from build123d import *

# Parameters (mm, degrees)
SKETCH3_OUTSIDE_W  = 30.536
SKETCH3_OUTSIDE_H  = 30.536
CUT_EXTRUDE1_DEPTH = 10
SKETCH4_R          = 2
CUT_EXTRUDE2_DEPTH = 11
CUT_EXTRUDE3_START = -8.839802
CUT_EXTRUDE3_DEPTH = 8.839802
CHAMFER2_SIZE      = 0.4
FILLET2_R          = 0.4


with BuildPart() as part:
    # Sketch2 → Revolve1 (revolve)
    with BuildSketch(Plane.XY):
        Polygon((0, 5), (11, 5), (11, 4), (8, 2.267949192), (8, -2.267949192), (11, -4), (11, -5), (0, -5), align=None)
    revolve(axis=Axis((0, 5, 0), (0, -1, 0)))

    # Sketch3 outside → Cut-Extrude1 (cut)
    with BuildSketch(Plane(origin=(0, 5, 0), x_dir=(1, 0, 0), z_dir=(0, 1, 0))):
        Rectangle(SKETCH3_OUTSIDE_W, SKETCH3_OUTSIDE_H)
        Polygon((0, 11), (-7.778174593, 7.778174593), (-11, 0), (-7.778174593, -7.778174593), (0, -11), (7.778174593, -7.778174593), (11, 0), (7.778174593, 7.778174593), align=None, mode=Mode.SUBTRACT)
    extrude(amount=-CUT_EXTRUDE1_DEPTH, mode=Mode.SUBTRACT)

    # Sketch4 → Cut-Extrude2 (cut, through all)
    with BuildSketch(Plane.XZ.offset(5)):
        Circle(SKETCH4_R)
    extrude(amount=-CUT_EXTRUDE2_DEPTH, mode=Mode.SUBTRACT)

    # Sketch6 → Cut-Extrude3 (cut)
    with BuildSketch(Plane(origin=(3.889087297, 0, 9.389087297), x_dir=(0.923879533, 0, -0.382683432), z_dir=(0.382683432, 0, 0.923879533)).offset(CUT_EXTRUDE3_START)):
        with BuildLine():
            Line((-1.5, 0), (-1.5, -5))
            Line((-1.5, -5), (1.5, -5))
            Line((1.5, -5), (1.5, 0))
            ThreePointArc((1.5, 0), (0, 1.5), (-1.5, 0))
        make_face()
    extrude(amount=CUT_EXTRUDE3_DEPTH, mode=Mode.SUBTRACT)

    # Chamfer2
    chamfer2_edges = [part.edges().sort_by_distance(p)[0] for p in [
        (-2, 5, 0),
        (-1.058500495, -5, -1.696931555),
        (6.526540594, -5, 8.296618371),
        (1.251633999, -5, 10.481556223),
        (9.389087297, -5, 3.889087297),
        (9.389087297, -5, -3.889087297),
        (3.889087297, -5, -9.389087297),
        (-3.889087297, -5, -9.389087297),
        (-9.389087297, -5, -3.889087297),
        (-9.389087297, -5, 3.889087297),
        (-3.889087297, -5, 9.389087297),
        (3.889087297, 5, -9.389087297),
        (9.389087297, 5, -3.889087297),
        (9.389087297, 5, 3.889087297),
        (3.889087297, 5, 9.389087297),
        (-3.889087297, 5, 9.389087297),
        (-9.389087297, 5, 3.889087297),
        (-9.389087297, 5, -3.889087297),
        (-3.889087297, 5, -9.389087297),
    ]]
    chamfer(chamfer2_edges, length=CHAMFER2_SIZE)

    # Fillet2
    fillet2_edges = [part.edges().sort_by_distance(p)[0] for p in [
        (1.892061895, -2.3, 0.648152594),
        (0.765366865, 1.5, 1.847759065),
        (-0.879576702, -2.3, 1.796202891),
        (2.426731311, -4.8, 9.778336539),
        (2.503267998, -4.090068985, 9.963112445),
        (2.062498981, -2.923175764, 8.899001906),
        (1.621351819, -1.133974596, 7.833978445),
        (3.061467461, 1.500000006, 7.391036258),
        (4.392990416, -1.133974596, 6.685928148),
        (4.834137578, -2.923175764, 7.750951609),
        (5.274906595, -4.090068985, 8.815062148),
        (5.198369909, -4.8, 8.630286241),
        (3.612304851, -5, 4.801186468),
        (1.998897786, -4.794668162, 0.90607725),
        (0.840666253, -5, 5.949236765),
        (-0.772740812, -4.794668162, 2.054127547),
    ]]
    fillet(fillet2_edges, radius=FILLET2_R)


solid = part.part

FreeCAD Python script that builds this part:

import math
import FreeCAD as App
import Part
import Sketcher
Q = App.Units.Quantity


def edges_at(feature, points):
    """Names of the edges that pass closest to the given points."""
    edges = feature.Shape.Edges
    near = lambda p: min(range(len(edges)), key=lambda i: edges[i].distToShape(Part.Vertex(*p))[0])
    return sorted({f"Edge{near(p) + 1}" for p in points})


def add_polygon(sketch, points):
    """Adds a closed chain of lines whose ends are joined by coincident constraints."""
    first, n = sketch.GeometryCount, len(points)
    for a, b in zip(points, points[1:] + points[:1]):
        sketch.addGeometry(Part.LineSegment(App.Vector(*a, 0), App.Vector(*b, 0)), False)
    for i in range(n):
        sketch.addConstraint(Sketcher.Constraint("Coincident", first + i, 2, first + (i + 1) % n, 1))

doc = App.newDocument("Part")
params = doc.addObject("Spreadsheet::Sheet", "Params")
for row, (alias, value) in enumerate([
    ("sketch1_width", "11 mm"),
    ("sketch1_height", "10 mm"),
    ("sketch1_height2", "1 mm"),
    ("revolution_angle", "360 deg"),
    ("pocket1_length", "10 mm"),
    ("sketch3_diameter", "4 mm"),
    ("sketch4_radius", "1.5 mm"),
    ("sketch4_height", "5 mm"),
    ("pocket3_length", "8.839802 mm"),
    ("chamfer_size", "0.4 mm"),
    ("fillet_radius", "0.4 mm"),
], start=1):
    params.set(f"A{row}", alias)
    params.set(f"B{row}", "=" + value)
    params.setAlias(f"B{row}", alias)

body = doc.addObject("PartDesign::Body", "Body")

sketch1 = doc.addObject("Sketcher::SketchObject", "Sketch")
body.addObject(sketch1)
sketch1.AttachmentSupport = (doc.XY_Plane, [""])
sketch1.MapMode = "FlatFace"
add_polygon(sketch1, [(11, 5), (0, 5), (0, -5), (11, -5), (11, -4), (8, -2.267949), (8, 2.267949), (11, 4)])
sketch1.addConstraint([
    Sketcher.Constraint("Horizontal", 0),
    Sketcher.Constraint("Vertical", 1),
    Sketcher.Constraint("Horizontal", 2),
    Sketcher.Constraint("Vertical", 3),
    Sketcher.Constraint("Vertical", 5),
    Sketcher.Constraint("Vertical", 7),
    Sketcher.Constraint("Symmetric", 0, 2, 1, 2, -1, 1),
    Sketcher.Constraint("Symmetric", 3, 2, 6, 2, -1),
    Sketcher.Constraint("Equal", 4, 6),
    Sketcher.Constraint("DistanceX", 0, 2, 0, 1, Q("11 mm")),
    Sketcher.Constraint("DistanceY", 1, 2, 1, 1, Q("10 mm")),
    Sketcher.Constraint("DistanceY", 3, 1, 3, 2, Q("1 mm")),
    Sketcher.Constraint("Angle", 4, Q("150 deg")),
    Sketcher.Constraint("DistanceX", -1, 1, 4, 2, Q("8 mm")),
])
sketch1.setExpression("Constraints[17]", "Params.sketch1_width")
sketch1.setExpression("Constraints[18]", "Params.sketch1_height")
sketch1.setExpression("Constraints[19]", "Params.sketch1_height2")
revolution = doc.addObject("PartDesign::Revolution", "Revolution")
body.addObject(revolution)
revolution.Profile = sketch1
revolution.ReferenceAxis = (sketch1, ["V_Axis"])
revolution.setExpression("Angle", "Params.revolution_angle")

sketch2 = doc.addObject("Sketcher::SketchObject", "Sketch001")
body.addObject(sketch2)
sketch2.AttachmentSupport = (doc.XZ_Plane, [""])
sketch2.MapMode = "FlatFace"
sketch2.AttachmentOffset = App.Placement(App.Vector(0, 0, -5), App.Rotation())
add_polygon(sketch2, [(-15.268, -15.268), (-15.268, 15.268), (15.268, 15.268), (15.268, -15.268)])
add_polygon(sketch2, [(-7.778175, -7.778175), (0, -11), (7.778175, -7.778175), (11, 0), (7.778175, 7.778175), (0, 11), (-7.778175, 7.778175), (-11, 0)])
sketch2.addConstraint([
    Sketcher.Constraint("Vertical", 0),
    Sketcher.Constraint("Horizontal", 1),
    Sketcher.Constraint("Vertical", 2),
    Sketcher.Constraint("Horizontal", 3),
    Sketcher.Constraint("Symmetric", 0, 2, 2, 2, -1, 1),
    Sketcher.Constraint("Symmetric", 4, 2, 8, 2, -1, 1),
    Sketcher.Constraint("Symmetric", 5, 2, 9, 2, -1, 1),
    Sketcher.Constraint("Symmetric", 6, 2, 10, 2, -1, 1),
    Sketcher.Constraint("Symmetric", 7, 2, 11, 2, -1, 1),
    Sketcher.Constraint("Symmetric", 7, 2, 9, 2, -2),
    Sketcher.Constraint("PointOnObject", 4, 2, -2),
    Sketcher.Constraint("PointOnObject", 6, 2, -1),
    Sketcher.Constraint("Perpendicular", 4, 6),
    Sketcher.Constraint("Equal", 3, 0),
    Sketcher.Constraint("Equal", 5, 6),
    Sketcher.Constraint("DistanceY", 4, 2, -1, 1, Q("11 mm")),
    Sketcher.Constraint("Angle", 4, Q("-22.5 deg")),
    Sketcher.Constraint("DistanceX", 1, 1, 1, 2, Q("30.536 mm")),
])
pocket1 = doc.addObject("PartDesign::Pocket", "Pocket")
body.addObject(pocket1)
pocket1.Profile = sketch2
pocket1.setExpression("Length", "Params.pocket1_length")
pocket1.Reversed = True

sketch3 = doc.addObject("Sketcher::SketchObject", "Sketch002")
body.addObject(sketch3)
sketch3.AttachmentSupport = (doc.XZ_Plane, [""])
sketch3.MapMode = "FlatFace"
sketch3.AttachmentOffset = App.Placement(App.Vector(0, 0, 5), App.Rotation())
sketch3.addGeometry(Part.Circle(App.Vector(0, 0, 0), App.Vector(0, 0, 1), 2), False)
sketch3.addConstraint([
    Sketcher.Constraint("Coincident", 0, 3, -1, 1),
    Sketcher.Constraint("Diameter", 0, Q("4 mm")),
])
sketch3.setExpression("Constraints[1]", "Params.sketch3_diameter")
pocket2 = doc.addObject("PartDesign::Pocket", "Pocket001")
body.addObject(pocket2)
pocket2.Profile = sketch3
pocket2.Type = "ThroughAll"

sketch4 = doc.addObject("Sketcher::SketchObject", "Sketch003")
body.addObject(sketch4)
sketch4.Placement = App.Placement(App.Vector(0.506242, 0, 1.222175), App.Rotation(App.Vector(0.923879533, 0, -0.382683432), App.Vector(0, 1.000000001, 0), App.Vector(0.382683432, 0, 0.923879533), "ZXY"))
sketch4.addGeometry([
    Part.LineSegment(App.Vector(-1.5, 0, 0), App.Vector(-1.5, -5, 0)),
    Part.LineSegment(App.Vector(-1.5, -5, 0), App.Vector(1.5, -5, 0)),
    Part.LineSegment(App.Vector(1.5, -5, 0), App.Vector(1.5, 0, 0)),
    Part.ArcOfCircle(Part.Circle(App.Vector(0, 0, 0), App.Vector(0, 0, 1), 1.5), math.radians(0), math.radians(180)),
], False)
sketch4.addConstraint([
    Sketcher.Constraint("Coincident", 0, 2, 1, 1),
    Sketcher.Constraint("Coincident", 1, 2, 2, 1),
    Sketcher.Constraint("Tangent", 2, 2, 3, 1),
    Sketcher.Constraint("Tangent", 3, 2, 0, 1),
    Sketcher.Constraint("Vertical", 0),
    Sketcher.Constraint("Horizontal", 1),
    Sketcher.Constraint("Vertical", 2),
    Sketcher.Constraint("Coincident", 3, 3, -1, 1),
    Sketcher.Constraint("Radius", 3, Q("1.5 mm")),
    Sketcher.Constraint("DistanceY", 0, 2, 0, 1, Q("5 mm")),
])
sketch4.setExpression("Constraints[8]", "Params.sketch4_radius")
sketch4.setExpression("Constraints[9]", "Params.sketch4_height")
pocket3 = doc.addObject("PartDesign::Pocket", "Pocket002")
body.addObject(pocket3)
pocket3.Profile = sketch4
pocket3.setExpression("Length", "Params.pocket3_length")
pocket3.Reversed = True
doc.recompute()

chamfer = doc.addObject("PartDesign::Chamfer", "Chamfer")
body.addObject(chamfer)
chamfer.Base = (pocket3, edges_at(pocket3, [
    (-2, 5, 0),
    (-1.059, -5, -1.697),
    (6.527, -5, 8.297),
    (1.252, -5, 10.482),
    (9.389, -5, 3.889),
    (9.389, -5, -3.889),
    (3.889, -5, -9.389),
    (-3.889, -5, -9.389),
    (-9.389, -5, -3.889),
    (-9.389, -5, 3.889),
    (-3.889, -5, 9.389),
    (3.889, 5, -9.389),
    (9.389, 5, -3.889),
    (9.389, 5, 3.889),
    (3.889, 5, 9.389),
    (-3.889, 5, 9.389),
    (-9.389, 5, 3.889),
    (-9.389, 5, -3.889),
    (-3.889, 5, -9.389),
]))
chamfer.setExpression("Size", "Params.chamfer_size")
doc.recompute()

fillet = doc.addObject("PartDesign::Fillet", "Fillet")
body.addObject(fillet)
fillet.Base = (chamfer, edges_at(chamfer, [
    (1.892, -2.3, 0.648),
    (0.765, 1.5, 1.848),
    (-0.88, -2.3, 1.796),
    (2.427, -4.8, 9.778),
    (2.503, -4.09, 9.963),
    (2.062, -2.923, 8.899),
    (1.621, -1.134, 7.834),
    (3.061, 1.5, 7.391),
    (4.393, -1.134, 6.686),
    (4.834, -2.923, 7.751),
    (5.275, -4.09, 8.815),
    (5.198, -4.8, 8.63),
    (3.612, -5, 4.801),
    (1.999, -4.795, 0.906),
    (0.841, -5, 5.949),
    (-0.773, -4.795, 2.054),
]))
fillet.setExpression("Radius", "Params.fillet_radius")

doc.recompute()
